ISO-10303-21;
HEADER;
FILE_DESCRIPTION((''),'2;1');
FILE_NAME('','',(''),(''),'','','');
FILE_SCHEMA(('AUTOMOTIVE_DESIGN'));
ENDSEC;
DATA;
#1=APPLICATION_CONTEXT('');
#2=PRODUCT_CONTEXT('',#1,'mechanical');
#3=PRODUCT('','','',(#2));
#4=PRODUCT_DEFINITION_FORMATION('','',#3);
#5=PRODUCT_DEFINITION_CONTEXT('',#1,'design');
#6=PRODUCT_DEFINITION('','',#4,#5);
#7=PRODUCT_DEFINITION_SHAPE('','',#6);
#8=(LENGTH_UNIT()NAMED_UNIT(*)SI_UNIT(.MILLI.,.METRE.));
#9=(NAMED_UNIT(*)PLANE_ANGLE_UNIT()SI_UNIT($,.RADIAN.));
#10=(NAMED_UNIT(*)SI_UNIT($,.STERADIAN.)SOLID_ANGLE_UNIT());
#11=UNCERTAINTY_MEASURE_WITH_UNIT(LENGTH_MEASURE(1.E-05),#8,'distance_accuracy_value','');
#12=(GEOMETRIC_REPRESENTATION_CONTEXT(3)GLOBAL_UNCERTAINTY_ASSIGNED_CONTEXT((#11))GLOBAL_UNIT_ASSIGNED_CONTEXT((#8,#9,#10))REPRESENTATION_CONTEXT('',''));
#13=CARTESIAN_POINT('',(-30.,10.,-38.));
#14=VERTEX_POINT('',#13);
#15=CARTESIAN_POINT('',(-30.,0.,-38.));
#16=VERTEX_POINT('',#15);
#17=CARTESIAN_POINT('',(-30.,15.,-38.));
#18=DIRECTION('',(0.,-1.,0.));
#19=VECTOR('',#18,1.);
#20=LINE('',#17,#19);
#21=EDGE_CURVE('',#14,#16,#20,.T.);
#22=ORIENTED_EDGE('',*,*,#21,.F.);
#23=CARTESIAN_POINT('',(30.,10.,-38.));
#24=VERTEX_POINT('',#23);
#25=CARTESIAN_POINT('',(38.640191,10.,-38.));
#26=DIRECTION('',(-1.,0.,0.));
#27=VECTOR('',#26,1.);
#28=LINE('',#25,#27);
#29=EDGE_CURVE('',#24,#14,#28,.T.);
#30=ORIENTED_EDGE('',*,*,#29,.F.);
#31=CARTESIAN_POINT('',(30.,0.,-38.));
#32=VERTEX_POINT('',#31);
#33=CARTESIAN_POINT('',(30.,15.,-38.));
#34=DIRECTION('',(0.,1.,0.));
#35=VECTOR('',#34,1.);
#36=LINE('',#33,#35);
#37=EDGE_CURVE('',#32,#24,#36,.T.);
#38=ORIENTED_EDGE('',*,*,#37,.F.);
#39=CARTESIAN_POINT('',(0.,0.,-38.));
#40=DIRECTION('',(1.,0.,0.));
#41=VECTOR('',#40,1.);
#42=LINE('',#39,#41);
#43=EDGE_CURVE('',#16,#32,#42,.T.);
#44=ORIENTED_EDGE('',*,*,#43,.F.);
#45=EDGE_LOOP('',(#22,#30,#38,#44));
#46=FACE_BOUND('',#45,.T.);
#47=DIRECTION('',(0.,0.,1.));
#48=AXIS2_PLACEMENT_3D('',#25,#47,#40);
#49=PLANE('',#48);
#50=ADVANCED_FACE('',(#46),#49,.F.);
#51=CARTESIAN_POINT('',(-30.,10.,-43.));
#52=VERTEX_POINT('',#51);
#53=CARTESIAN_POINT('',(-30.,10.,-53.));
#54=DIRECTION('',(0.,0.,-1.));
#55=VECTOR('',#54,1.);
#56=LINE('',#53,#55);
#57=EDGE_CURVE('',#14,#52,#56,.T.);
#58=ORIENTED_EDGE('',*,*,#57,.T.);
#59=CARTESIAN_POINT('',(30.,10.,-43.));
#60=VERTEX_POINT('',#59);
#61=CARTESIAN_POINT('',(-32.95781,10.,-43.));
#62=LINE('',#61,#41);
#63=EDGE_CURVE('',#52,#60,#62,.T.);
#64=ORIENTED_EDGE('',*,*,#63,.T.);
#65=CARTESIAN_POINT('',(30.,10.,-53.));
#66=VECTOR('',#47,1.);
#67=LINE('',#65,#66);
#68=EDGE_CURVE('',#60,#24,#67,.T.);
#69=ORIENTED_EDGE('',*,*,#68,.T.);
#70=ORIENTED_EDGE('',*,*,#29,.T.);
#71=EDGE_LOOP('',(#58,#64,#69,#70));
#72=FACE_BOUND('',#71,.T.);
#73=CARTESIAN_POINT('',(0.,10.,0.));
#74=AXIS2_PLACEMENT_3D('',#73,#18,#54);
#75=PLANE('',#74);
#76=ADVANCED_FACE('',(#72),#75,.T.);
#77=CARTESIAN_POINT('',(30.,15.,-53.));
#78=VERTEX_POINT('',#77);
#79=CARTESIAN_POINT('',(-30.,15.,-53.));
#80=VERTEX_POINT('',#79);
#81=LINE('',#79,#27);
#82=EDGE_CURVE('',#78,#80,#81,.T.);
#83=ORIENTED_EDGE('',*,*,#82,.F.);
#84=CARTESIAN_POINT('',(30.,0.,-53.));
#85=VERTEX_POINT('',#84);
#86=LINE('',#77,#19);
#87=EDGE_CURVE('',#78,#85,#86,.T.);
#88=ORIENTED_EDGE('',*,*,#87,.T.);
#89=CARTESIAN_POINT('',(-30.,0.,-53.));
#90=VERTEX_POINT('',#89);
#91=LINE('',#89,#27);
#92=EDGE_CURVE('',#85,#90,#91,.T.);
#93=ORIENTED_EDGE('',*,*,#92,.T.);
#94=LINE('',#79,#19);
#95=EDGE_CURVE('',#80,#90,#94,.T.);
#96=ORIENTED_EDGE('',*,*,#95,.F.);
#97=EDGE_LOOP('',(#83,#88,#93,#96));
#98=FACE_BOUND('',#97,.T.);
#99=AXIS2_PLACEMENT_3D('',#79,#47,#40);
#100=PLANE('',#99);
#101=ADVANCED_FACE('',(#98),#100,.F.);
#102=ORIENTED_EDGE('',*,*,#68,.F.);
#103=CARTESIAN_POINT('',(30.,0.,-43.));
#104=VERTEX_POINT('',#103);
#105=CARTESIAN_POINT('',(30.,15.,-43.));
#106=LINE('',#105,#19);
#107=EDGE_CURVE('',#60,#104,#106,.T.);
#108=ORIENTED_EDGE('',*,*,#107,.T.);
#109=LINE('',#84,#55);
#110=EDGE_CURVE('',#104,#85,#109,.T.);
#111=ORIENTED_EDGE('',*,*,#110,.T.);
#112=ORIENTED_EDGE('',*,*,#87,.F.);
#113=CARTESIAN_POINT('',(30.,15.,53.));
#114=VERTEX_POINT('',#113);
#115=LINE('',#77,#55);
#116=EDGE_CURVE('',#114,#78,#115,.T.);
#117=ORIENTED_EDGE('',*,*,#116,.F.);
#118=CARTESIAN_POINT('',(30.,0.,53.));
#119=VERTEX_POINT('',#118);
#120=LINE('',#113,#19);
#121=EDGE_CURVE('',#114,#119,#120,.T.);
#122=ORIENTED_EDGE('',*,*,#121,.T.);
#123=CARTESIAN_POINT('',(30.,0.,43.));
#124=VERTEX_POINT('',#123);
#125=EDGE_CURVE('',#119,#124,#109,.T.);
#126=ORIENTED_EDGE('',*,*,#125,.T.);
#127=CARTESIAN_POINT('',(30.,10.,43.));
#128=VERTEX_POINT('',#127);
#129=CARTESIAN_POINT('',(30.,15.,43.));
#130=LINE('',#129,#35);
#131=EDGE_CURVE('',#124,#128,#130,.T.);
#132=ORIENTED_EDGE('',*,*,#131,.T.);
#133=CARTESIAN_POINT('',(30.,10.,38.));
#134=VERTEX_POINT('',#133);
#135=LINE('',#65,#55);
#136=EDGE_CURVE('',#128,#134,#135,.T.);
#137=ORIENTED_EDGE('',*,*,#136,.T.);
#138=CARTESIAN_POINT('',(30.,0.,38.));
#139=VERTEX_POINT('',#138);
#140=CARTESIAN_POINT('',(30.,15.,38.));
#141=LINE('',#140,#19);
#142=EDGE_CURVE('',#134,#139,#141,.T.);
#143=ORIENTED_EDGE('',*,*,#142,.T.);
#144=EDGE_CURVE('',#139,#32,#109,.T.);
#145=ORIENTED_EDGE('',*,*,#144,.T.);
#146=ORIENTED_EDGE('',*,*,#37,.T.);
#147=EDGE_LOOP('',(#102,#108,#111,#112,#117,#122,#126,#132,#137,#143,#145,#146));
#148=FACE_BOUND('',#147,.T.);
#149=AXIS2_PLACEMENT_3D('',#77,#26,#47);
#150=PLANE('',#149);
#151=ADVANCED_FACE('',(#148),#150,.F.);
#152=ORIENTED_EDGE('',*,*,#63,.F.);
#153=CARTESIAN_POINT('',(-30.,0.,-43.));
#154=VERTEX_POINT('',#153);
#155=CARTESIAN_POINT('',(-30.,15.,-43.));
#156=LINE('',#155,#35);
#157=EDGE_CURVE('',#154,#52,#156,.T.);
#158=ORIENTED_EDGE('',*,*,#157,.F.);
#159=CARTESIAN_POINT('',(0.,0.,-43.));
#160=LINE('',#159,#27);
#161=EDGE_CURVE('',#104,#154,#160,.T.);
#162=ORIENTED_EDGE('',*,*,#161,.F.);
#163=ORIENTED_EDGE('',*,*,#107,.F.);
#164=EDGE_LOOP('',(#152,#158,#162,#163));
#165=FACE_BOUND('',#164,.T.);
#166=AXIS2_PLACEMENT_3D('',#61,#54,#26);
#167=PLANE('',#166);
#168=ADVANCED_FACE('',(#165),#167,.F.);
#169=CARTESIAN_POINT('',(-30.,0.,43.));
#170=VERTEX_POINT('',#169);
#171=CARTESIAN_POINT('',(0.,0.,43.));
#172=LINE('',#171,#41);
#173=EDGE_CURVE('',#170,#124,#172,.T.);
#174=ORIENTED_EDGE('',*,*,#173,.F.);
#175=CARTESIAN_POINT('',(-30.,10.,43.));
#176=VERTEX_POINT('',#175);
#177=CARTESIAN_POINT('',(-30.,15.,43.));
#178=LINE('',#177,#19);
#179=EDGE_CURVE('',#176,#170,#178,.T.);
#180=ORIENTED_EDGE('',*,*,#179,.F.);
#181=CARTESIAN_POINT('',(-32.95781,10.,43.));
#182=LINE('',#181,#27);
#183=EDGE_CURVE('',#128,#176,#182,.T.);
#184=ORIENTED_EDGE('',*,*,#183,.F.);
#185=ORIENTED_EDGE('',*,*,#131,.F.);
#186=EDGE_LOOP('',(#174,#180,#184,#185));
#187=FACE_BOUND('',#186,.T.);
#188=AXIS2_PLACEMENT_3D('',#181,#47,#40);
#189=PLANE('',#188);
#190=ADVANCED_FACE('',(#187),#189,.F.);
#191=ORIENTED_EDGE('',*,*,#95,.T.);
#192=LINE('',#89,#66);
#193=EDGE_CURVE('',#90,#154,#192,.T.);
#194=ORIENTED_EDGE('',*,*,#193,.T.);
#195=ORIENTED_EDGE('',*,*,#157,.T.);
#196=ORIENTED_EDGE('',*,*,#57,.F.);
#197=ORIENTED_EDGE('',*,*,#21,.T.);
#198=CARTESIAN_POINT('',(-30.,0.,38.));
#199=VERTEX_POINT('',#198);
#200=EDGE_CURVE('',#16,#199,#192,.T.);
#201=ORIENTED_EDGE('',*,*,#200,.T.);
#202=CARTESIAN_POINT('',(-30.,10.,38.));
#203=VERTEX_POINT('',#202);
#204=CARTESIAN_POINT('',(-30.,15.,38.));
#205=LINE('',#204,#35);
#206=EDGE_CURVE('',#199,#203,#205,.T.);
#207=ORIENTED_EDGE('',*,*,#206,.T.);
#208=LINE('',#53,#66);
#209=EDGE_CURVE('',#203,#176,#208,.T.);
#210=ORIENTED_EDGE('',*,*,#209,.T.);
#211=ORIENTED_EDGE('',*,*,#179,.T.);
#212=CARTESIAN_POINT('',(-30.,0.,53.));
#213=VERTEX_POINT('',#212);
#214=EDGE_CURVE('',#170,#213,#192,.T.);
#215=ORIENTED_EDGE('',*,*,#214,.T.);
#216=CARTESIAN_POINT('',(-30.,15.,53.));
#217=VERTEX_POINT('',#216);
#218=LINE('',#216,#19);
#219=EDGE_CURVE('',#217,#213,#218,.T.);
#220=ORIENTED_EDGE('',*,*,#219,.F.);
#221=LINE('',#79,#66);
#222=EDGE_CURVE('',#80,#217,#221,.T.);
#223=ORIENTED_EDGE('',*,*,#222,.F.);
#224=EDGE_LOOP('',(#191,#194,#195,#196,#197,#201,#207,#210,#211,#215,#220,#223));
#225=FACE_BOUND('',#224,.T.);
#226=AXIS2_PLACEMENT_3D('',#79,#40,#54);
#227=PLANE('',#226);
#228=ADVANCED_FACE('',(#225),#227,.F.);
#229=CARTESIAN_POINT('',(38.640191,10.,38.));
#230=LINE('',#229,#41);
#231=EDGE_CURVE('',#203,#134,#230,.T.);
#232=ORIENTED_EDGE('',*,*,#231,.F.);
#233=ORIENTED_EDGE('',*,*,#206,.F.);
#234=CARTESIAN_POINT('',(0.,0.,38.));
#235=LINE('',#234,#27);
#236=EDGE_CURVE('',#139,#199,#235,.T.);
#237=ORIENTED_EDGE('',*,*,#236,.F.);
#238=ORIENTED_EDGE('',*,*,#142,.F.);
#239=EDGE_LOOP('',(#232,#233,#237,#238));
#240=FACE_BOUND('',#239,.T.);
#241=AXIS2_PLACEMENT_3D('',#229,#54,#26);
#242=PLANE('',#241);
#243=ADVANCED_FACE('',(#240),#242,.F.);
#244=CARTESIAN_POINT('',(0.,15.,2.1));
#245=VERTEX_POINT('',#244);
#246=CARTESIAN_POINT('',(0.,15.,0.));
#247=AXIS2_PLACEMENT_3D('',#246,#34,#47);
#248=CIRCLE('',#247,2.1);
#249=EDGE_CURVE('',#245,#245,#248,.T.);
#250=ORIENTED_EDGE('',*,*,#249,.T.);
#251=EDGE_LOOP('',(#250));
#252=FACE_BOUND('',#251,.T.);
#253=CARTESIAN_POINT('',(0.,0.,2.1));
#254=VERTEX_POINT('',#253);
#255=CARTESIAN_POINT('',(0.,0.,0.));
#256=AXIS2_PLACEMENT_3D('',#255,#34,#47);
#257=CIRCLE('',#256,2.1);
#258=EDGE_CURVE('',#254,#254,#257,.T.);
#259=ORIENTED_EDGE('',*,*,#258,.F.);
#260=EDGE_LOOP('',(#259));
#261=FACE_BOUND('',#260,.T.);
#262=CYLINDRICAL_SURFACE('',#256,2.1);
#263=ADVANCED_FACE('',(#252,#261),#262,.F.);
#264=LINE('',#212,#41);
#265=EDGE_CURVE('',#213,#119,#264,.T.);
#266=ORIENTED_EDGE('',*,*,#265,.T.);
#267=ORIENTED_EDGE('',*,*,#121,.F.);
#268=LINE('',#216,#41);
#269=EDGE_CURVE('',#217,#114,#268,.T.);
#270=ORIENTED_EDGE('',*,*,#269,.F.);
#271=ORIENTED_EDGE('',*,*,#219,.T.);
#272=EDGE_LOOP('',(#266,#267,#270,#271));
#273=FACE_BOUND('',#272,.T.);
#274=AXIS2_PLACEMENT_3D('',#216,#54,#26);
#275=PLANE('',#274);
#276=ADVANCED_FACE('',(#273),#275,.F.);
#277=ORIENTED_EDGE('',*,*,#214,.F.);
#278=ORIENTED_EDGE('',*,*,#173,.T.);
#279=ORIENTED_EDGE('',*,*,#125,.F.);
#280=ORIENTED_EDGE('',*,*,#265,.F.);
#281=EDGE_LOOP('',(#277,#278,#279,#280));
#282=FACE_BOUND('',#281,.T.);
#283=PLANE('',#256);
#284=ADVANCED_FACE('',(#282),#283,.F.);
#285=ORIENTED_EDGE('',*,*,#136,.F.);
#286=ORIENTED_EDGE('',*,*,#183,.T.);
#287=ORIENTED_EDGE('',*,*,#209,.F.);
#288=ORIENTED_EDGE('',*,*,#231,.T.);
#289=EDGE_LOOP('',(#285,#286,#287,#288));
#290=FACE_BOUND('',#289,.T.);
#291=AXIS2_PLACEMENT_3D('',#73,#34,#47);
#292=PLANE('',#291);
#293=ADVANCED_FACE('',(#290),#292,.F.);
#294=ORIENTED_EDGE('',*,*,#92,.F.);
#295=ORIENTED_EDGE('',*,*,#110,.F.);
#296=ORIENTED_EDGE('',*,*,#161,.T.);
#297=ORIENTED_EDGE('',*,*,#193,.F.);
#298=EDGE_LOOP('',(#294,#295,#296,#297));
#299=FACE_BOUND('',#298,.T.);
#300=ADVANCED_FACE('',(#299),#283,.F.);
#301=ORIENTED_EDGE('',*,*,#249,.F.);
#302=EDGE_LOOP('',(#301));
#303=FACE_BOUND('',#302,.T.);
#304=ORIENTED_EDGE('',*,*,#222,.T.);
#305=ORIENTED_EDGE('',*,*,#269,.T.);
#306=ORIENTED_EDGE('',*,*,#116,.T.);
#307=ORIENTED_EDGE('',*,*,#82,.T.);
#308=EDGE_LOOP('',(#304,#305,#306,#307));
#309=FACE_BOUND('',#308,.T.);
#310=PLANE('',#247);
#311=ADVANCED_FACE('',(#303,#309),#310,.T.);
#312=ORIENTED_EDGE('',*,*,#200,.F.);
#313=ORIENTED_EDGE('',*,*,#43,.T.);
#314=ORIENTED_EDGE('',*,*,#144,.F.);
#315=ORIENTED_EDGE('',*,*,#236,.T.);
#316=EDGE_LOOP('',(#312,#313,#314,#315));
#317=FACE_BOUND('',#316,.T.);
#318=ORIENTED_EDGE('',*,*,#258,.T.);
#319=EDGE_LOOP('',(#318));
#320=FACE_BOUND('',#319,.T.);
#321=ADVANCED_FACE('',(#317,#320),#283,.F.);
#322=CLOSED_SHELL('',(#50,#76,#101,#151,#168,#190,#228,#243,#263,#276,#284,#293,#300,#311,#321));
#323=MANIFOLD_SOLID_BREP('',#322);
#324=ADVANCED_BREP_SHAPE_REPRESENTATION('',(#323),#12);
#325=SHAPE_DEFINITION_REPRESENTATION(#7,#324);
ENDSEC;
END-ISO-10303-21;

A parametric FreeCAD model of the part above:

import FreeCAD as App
import Part
import Sketcher
from FreeCAD import Vector

doc = App.newDocument("Part")
body = doc.addObject("PartDesign::Body", "Body")

# Sketch on XZ plane
sketch1 = body.newObject("Sketcher::SketchObject", "Sketch")
sketch1.AttachmentSupport = (doc.getObject("XZ_Plane"), [""])
sketch1.MapMode = "FlatFace"
sketch1.addGeometry([
    Part.LineSegment(Vector(-30, -53, 0), Vector(-30, 53, 0)),
    Part.LineSegment(Vector(-30, 53, 0), Vector(30, 53, 0)),
    Part.LineSegment(Vector(30, 53, 0), Vector(30, -53, 0)),
    Part.LineSegment(Vector(30, -53, 0), Vector(-30, -53, 0)),
], False)
sketch1.addConstraint([
    Sketcher.Constraint("Coincident", 0, 2, 1, 1),
    Sketcher.Constraint("Coincident", 1, 2, 2, 1),
    Sketcher.Constraint("Coincident", 2, 2, 3, 1),
    Sketcher.Constraint("Coincident", 3, 2, 0, 1),
    Sketcher.Constraint("Vertical", 0),
    Sketcher.Constraint("Horizontal", 1),
    Sketcher.Constraint("Vertical", 2),
    Sketcher.Constraint("Horizontal", 3),
    Sketcher.Constraint("Symmetric", 0, 2, 2, 2, -1, 1),
    Sketcher.Constraint("DistanceX", 1, 1, 1, 2, 60.0),
    Sketcher.Constraint("DistanceY", 0, 1, 0, 2, 106.0),
])
pad1 = body.newObject("PartDesign::Pad", "Pad")
pad1.Profile = sketch1
pad1.Length = 15
pad1.Reversed = True

# Sketch on XZ plane
sketch2 = body.newObject("Sketcher::SketchObject", "Sketch001")
sketch2.AttachmentSupport = (doc.getObject("XZ_Plane"), [""])
sketch2.MapMode = "FlatFace"
sketch2.addGeometry([
    Part.LineSegment(Vector(39, 43, 0), Vector(-33, 43, 0)),  # 0
    Part.LineSegment(Vector(-33, 43, 0), Vector(-36, 38, 0)),  # 1
    Part.LineSegment(Vector(-36, 38, 0), Vector(39, 38, 0)),  # 2
    Part.LineSegment(Vector(39, 38, 0), Vector(39, 43, 0)),  # 3
    Part.LineSegment(Vector(39, -38, 0), Vector(-36, -38, 0)),  # 4
    Part.LineSegment(Vector(-36, -38, 0), Vector(-33, -43, 0)),  # 5
    Part.LineSegment(Vector(-33, -43, 0), Vector(39, -43, 0)),  # 6
    Part.LineSegment(Vector(39, -43, 0), Vector(39, -38, 0)),  # 7
], False)
sketch2.addConstraint([
    Sketcher.Constraint("Coincident", 0, 2, 1, 1),
    Sketcher.Constraint("Coincident", 1, 2, 2, 1),
    Sketcher.Constraint("Coincident", 2, 2, 3, 1),
    Sketcher.Constraint("Coincident", 3, 2, 0, 1),
    Sketcher.Constraint("Coincident", 4, 2, 5, 1),
    Sketcher.Constraint("Coincident", 5, 2, 6, 1),
    Sketcher.Constraint("Coincident", 6, 2, 7, 1),
    Sketcher.Constraint("Coincident", 7, 2, 4, 1),
    Sketcher.Constraint("Horizontal", 0),
    Sketcher.Constraint("Horizontal", 2),
    Sketcher.Constraint("Vertical", 3),
    Sketcher.Constraint("Horizontal", 4),
    Sketcher.Constraint("Horizontal", 6),
    Sketcher.Constraint("Vertical", 7),
    Sketcher.Constraint("Symmetric", 1, 2, 4, 2, -1),
    Sketcher.Constraint("Symmetric", 0, 2, 5, 2, -1),
    Sketcher.Constraint("Vertical", 3, 2, 6, 2),
    Sketcher.Constraint("DistanceY", 3, 1, 3, 2, 5.0),
    Sketcher.Constraint("DistanceY", -1, 1, 0, 2, 43.0),
    Sketcher.Constraint("DistanceX", 0, 2, 0, 1, 71.598002),
    Sketcher.Constraint("DistanceX", 1, 2, -1, 1, 35.799001),
    Sketcher.Constraint("DistanceX", 2, 1, 2, 2, 74.439192),
])
pocket1 = body.newObject("PartDesign::Pocket", "Pocket")
pocket1.Profile = sketch2
pocket1.Length = 10

# Sketch on XZ plane
sketch3 = body.newObject("Sketcher::SketchObject", "Sketch002")
sketch3.AttachmentSupport = (doc.getObject("XZ_Plane"), [""])
sketch3.MapMode = "FlatFace"
sketch3.AttachmentOffset = App.Placement(Vector(0, 0, -15), App.Rotation())
sketch3.addGeometry(Part.Circle(Vector(0, 0, 0), Vector(0, 0, 1), 2.1), False)
sketch3.addConstraint([
    Sketcher.Constraint("Coincident", 0, 3, -1, 1),
    Sketcher.Constraint("Diameter", 0, 4.2),
])
pocket2 = body.newObject("PartDesign::Pocket", "Pocket001")
pocket2.Profile = sketch3
pocket2.Type = "ThroughAll"
pocket2.Midplane = True

doc.recompute()
